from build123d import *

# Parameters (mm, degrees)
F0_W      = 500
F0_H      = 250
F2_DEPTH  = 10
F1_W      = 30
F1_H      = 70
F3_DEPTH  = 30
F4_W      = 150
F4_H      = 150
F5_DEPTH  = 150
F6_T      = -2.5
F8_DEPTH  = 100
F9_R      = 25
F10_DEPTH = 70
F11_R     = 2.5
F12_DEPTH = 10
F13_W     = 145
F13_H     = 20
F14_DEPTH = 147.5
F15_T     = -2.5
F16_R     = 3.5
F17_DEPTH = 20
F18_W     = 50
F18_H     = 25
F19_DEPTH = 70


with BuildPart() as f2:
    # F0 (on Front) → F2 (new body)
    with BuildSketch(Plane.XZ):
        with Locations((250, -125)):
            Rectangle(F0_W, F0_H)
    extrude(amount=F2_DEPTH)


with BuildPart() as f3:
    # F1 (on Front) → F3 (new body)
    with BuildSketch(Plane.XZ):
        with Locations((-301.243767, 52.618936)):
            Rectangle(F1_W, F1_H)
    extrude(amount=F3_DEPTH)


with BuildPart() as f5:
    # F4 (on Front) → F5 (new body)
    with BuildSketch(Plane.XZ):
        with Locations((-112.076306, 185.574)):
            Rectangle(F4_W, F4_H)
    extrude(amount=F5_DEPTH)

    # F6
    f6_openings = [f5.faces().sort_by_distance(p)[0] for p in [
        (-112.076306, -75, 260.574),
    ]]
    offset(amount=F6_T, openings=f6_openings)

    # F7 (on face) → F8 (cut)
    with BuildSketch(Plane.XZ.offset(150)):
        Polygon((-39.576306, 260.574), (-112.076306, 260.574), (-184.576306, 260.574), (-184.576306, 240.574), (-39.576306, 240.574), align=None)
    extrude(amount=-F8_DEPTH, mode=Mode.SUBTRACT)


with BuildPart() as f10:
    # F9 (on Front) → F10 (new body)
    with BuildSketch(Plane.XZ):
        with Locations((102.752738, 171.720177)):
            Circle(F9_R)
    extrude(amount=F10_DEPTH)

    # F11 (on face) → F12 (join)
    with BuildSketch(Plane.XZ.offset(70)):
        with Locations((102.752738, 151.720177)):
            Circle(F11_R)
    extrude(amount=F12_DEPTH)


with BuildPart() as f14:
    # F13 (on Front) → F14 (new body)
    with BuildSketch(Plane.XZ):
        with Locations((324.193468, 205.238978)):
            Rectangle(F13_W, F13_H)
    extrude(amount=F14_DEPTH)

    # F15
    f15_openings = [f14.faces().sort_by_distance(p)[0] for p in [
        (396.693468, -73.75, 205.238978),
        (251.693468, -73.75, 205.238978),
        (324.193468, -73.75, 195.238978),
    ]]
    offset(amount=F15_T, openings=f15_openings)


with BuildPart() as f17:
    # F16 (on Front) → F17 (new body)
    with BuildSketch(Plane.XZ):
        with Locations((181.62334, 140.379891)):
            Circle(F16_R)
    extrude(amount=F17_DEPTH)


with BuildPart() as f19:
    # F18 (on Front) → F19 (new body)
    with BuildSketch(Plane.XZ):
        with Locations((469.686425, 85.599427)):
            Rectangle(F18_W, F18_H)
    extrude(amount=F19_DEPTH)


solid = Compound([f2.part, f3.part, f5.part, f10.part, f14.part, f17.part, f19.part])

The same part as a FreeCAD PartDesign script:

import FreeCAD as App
import Part
import Sketcher
Q = App.Units.Quantity


def faces_at(feature, points):
    """Names of the faces that lie closest to the given points."""
    faces = feature.Shape.Faces
    near = lambda p: min(range(len(faces)), key=lambda i: faces[i].distToShape(Part.Vertex(*p))[0])
    return sorted({f"Face{near(p) + 1}" for p in points})


def add_polygon(sketch, points):
    """Adds a closed chain of lines whose ends are joined by coincident constraints."""
    first, n = sketch.GeometryCount, len(points)
    for a, b in zip(points, points[1:] + points[:1]):
        sketch.addGeometry(Part.LineSegment(App.Vector(*a, 0), App.Vector(*b, 0)), False)
    for i in range(n):
        sketch.addConstraint(Sketcher.Constraint("Coincident", first + i, 2, first + (i + 1) % n, 1))

doc = App.newDocument("Part")
params = doc.addObject("Spreadsheet::Sheet", "Params")
for row, (alias, value) in enumerate([
    ("sketch1_width", "500 mm"),
    ("sketch1_height", "250 mm"),
    ("pad1_length", "10 mm"),
    ("sketch2_width", "30 mm"),
    ("sketch2_height", "70 mm"),
    ("pad2_length", "30 mm"),
    ("sketch3_width", "150 mm"),
    ("pad3_length", "150 mm"),
    ("thickness_wall", "2.5 mm"),
    ("sketch4_width", "145 mm"),
    ("sketch4_height", "20 mm"),
    ("pocket1_length", "100 mm"),
    ("sketch5_diameter", "50 mm"),
    ("pad4_length", "70 mm"),
    ("sketch6_diameter", "5 mm"),
    ("pad5_length", "10 mm"),
    ("sketch7_width", "145 mm"),
    ("sketch7_height", "20 mm"),
    ("pad6_length", "147.5 mm"),
    ("thickness2_wall", "2.5 mm"),
    ("sketch8_diameter", "7 mm"),
    ("pad7_length", "20 mm"),
    ("sketch9_width", "50 mm"),
    ("sketch9_height", "25 mm"),
    ("pad8_length", "70 mm"),
], start=1):
    params.set(f"A{row}", alias)
    params.set(f"B{row}", "=" + value)
    params.setAlias(f"B{row}", alias)

body = doc.addObject("PartDesign::Body", "Body")

sketch1 = body.newObject("Sketcher::SketchObject", "Sketch")
sketch1.AttachmentSupport = (doc.getObject("XZ_Plane"), [""])
sketch1.MapMode = "FlatFace"
add_polygon(sketch1, [(0, 0), (0, -250), (500, -250), (500, 0)])
sketch1.addConstraint(Sketcher.Constraint("Vertical", 0))
sketch1.addConstraint(Sketcher.Constraint("Horizontal", 1))
sketch1.addConstraint(Sketcher.Constraint("Vertical", 2))
sketch1.addConstraint(Sketcher.Constraint("Horizontal", 3))
sketch1.addConstraint(Sketcher.Constraint("Coincident", 3, 2, -1, 1))
sketch1.addConstraint(Sketcher.Constraint("DistanceX", 1, 1, 1, 2, Q("500 mm")))
sketch1.addConstraint(Sketcher.Constraint("DistanceY", 0, 2, 0, 1, Q("250 mm")))
sketch1.setExpression("Constraints[9]", "Params.sketch1_width")
sketch1.setExpression("Constraints[10]", "Params.sketch1_height")
pad1 = body.newObject("PartDesign::Pad", "Pad")
pad1.Profile = sketch1
pad1.setExpression("Length", "Params.pad1_length")
body2 = doc.addObject("PartDesign::Body", "Body001")

sketch2 = body2.newObject("Sketcher::SketchObject", "Sketch001")
sketch2.AttachmentSupport = (doc.getObject("XZ_Plane001"), [""])
sketch2.MapMode = "FlatFace"
add_polygon(sketch2, [(-316, 88), (-316, 18), (-286, 18), (-286, 88)])
sketch2.addConstraint(Sketcher.Constraint("Vertical", 0))
sketch2.addConstraint(Sketcher.Constraint("Horizontal", 1))
sketch2.addConstraint(Sketcher.Constraint("Vertical", 2))
sketch2.addConstraint(Sketcher.Constraint("Horizontal", 3))
sketch2.addConstraint(Sketcher.Constraint("DistanceX", 1, 1, 1, 2, Q("30 mm")))
sketch2.addConstraint(Sketcher.Constraint("DistanceY", 0, 2, 0, 1, Q("70 mm")))
sketch2.addConstraint(Sketcher.Constraint("DistanceX", 0, 2, -1, 1, Q("316.243767 mm")))
sketch2.addConstraint(Sketcher.Constraint("DistanceY", -1, 1, 0, 2, Q("17.618936 mm")))
sketch2.setExpression("Constraints[8]", "Params.sketch2_width")
sketch2.setExpression("Constraints[9]", "Params.sketch2_height")
pad2 = body2.newObject("PartDesign::Pad", "Pad001")
pad2.Profile = sketch2
pad2.setExpression("Length", "Params.pad2_length")
body3 = doc.addObject("PartDesign::Body", "Body002")

sketch3 = body3.newObject("Sketcher::SketchObject", "Sketch002")
sketch3.AttachmentSupport = (doc.getObject("XZ_Plane002"), [""])
sketch3.MapMode = "FlatFace"
add_polygon(sketch3, [(-187, 261), (-187, 111), (-37, 111), (-37, 261)])
sketch3.addConstraint(Sketcher.Constraint("Vertical", 0))
sketch3.addConstraint(Sketcher.Constraint("Horizontal", 1))
sketch3.addConstraint(Sketcher.Constraint("Vertical", 2))
sketch3.addConstraint(Sketcher.Constraint("Horizontal", 3))
sketch3.addConstraint(Sketcher.Constraint("Equal", 3, 0))
sketch3.addConstraint(Sketcher.Constraint("DistanceX", 1, 1, 1, 2, Q("150 mm")))
sketch3.addConstraint(Sketcher.Constraint("DistanceY", -1, 1, 0, 2, Q("110.574 mm")))
sketch3.addConstraint(Sketcher.Constraint("DistanceX", 0, 2, -1, 1, Q("187.076306 mm")))
sketch3.setExpression("Constraints[9]", "Params.sketch3_width")
pad3 = body3.newObject("PartDesign::Pad", "Pad002")
pad3.Profile = sketch3
pad3.setExpression("Length", "Params.pad3_length")
doc.recompute()

thickness = body3.newObject("PartDesign::Thickness", "Thickness")
thickness.Base = (pad3, faces_at(pad3, [(-112.076, -75, 260.574)]))
thickness.setExpression("Value", "Params.thickness_wall")
thickness.Reversed = True
thickness.Join = "Arc"

sketch4 = body3.newObject("Sketcher::SketchObject", "Sketch003")
sketch4.AttachmentSupport = (doc.getObject("XZ_Plane002"), [""])
sketch4.MapMode = "FlatFace"
sketch4.AttachmentOffset = App.Placement(App.Vector(0, 0, 150), App.Rotation())
add_polygon(sketch4, [(-40, 261), (-185, 261), (-185, 241), (-40, 241)])
sketch4.addConstraint(Sketcher.Constraint("Horizontal", 0))
sketch4.addConstraint(Sketcher.Constraint("Vertical", 1))
sketch4.addConstraint(Sketcher.Constraint("Horizontal", 2))
sketch4.addConstraint(Sketcher.Constraint("Vertical", 3))
sketch4.addConstraint(Sketcher.Constraint("DistanceX", 0, 2, 0, 1, Q("145 mm")))
sketch4.addConstraint(Sketcher.Constraint("DistanceY", 1, 2, 1, 1, Q("20 mm")))
sketch4.addConstraint(Sketcher.Constraint("DistanceY", -1, 1, 0, 2, Q("260.574 mm")))
sketch4.addConstraint(Sketcher.Constraint("DistanceX", 0, 2, -1, 1, Q("184.576306 mm")))
sketch4.setExpression("Constraints[8]", "Params.sketch4_width")
sketch4.setExpression("Constraints[9]", "Params.sketch4_height")
pocket1 = body3.newObject("PartDesign::Pocket", "Pocket")
pocket1.Profile = sketch4
pocket1.setExpression("Length", "Params.pocket1_length")
body4 = doc.addObject("PartDesign::Body", "Body003")

sketch5 = body4.newObject("Sketcher::SketchObject", "Sketch004")
sketch5.AttachmentSupport = (doc.getObject("XZ_Plane003"), [""])
sketch5.MapMode = "FlatFace"
sketch5.addGeometry(Part.Circle(App.Vector(103, 172, 0), App.Vector(0, 0, 1), 25), False)
sketch5.addConstraint(Sketcher.Constraint("Diameter", 0, Q("50 mm")))
sketch5.addConstraint(Sketcher.Constraint("DistanceX", -1, 1, 0, 3, Q("102.752738 mm")))
sketch5.addConstraint(Sketcher.Constraint("DistanceY", -1, 1, 0, 3, Q("171.720177 mm")))
sketch5.setExpression("Constraints[0]", "Params.sketch5_diameter")
pad4 = body4.newObject("PartDesign::Pad", "Pad003")
pad4.Profile = sketch5
pad4.setExpression("Length", "Params.pad4_length")

sketch6 = body4.newObject("Sketcher::SketchObject", "Sketch005")
sketch6.AttachmentSupport = (doc.getObject("XZ_Plane003"), [""])
sketch6.MapMode = "FlatFace"
sketch6.AttachmentOffset = App.Placement(App.Vector(0, 0, 70), App.Rotation())
sketch6.addGeometry(Part.Circle(App.Vector(102.8, 151.7, 0), App.Vector(0, 0, 1), 2.5), False)
sketch6.addConstraint(Sketcher.Constraint("Diameter", 0, Q("5 mm")))
sketch6.addConstraint(Sketcher.Constraint("DistanceX", -1, 1, 0, 3, Q("102.752738 mm")))
sketch6.addConstraint(Sketcher.Constraint("DistanceY", -1, 1, 0, 3, Q("151.720177 mm")))
sketch6.setExpression("Constraints[0]", "Params.sketch6_diameter")
pad5 = body4.newObject("PartDesign::Pad", "Pad004")
pad5.Profile = sketch6
pad5.setExpression("Length", "Params.pad5_length")
body5 = doc.addObject("PartDesign::Body", "Body004")

sketch7 = body5.newObject("Sketcher::SketchObject", "Sketch006")
sketch7.AttachmentSupport = (doc.getObject("XZ_Plane004"), [""])
sketch7.MapMode = "FlatFace"
add_polygon(sketch7, [(252, 215), (252, 195), (397, 195), (397, 215)])
sketch7.addConstraint(Sketcher.Constraint("Vertical", 0))
sketch7.addConstraint(Sketcher.Constraint("Horizontal", 1))
sketch7.addConstraint(Sketcher.Constraint("Vertical", 2))
sketch7.addConstraint(Sketcher.Constraint("Horizontal", 3))
sketch7.addConstraint(Sketcher.Constraint("DistanceX", 1, 1, 1, 2, Q("145 mm")))
sketch7.addConstraint(Sketcher.Constraint("DistanceY", 0, 2, 0, 1, Q("20 mm")))
sketch7.addConstraint(Sketcher.Constraint("DistanceX", -1, 1, 0, 2, Q("251.693468 mm")))
sketch7.addConstraint(Sketcher.Constraint("DistanceY", -1, 1, 0, 2, Q("195.238978 mm")))
sketch7.setExpression("Constraints[8]", "Params.sketch7_width")
sketch7.setExpression("Constraints[9]", "Params.sketch7_height")
pad6 = body5.newObject("PartDesign::Pad", "Pad005")
pad6.Profile = sketch7
pad6.setExpression("Length", "Params.pad6_length")
doc.recompute()

thickness2 = body5.newObject("PartDesign::Thickness", "Thickness001")
thickness2.Base = (pad6, faces_at(pad6, [(396.693, -73.75, 205.239), (251.693, -73.75, 205.239), (324.193, -73.75, 195.239)]))
thickness2.setExpression("Value", "Params.thickness2_wall")
thickness2.Reversed = True
thickness2.Join = "Arc"
body6 = doc.addObject("PartDesign::Body", "Body005")

sketch8 = body6.newObject("Sketcher::SketchObject", "Sketch007")
sketch8.AttachmentSupport = (doc.getObject("XZ_Plane005"), [""])
sketch8.MapMode = "FlatFace"
sketch8.addGeometry(Part.Circle(App.Vector(181.6, 140.4, 0), App.Vector(0, 0, 1), 3.5), False)
sketch8.addConstraint(Sketcher.Constraint("Diameter", 0, Q("7 mm")))
sketch8.addConstraint(Sketcher.Constraint("DistanceX", -1, 1, 0, 3, Q("181.62334 mm")))
sketch8.addConstraint(Sketcher.Constraint("DistanceY", -1, 1, 0, 3, Q("140.379891 mm")))
sketch8.setExpression("Constraints[0]", "Params.sketch8_diameter")
pad7 = body6.newObject("PartDesign::Pad", "Pad006")
pad7.Profile = sketch8
pad7.setExpression("Length", "Params.pad7_length")
body7 = doc.addObject("PartDesign::Body", "Body006")

sketch9 = body7.newObject("Sketcher::SketchObject", "Sketch008")
sketch9.AttachmentSupport = (doc.getObject("XZ_Plane006"), [""])
sketch9.MapMode = "FlatFace"
add_polygon(sketch9, [(445, 98), (445, 73), (495, 73), (495, 98)])
sketch9.addConstraint(Sketcher.Constraint("Vertical", 0))
sketch9.addConstraint(Sketcher.Constraint("Horizontal", 1))
sketch9.addConstraint(Sketcher.Constraint("Vertical", 2))
sketch9.addConstraint(Sketcher.Constraint("Horizontal", 3))
sketch9.addConstraint(Sketcher.Constraint("DistanceX", 1, 1, 1, 2, Q("50 mm")))
sketch9.addConstraint(Sketcher.Constraint("DistanceY", 0, 2, 0, 1, Q("25 mm")))
sketch9.addConstraint(Sketcher.Constraint("DistanceX", -1, 1, 0, 2, Q("444.686425 mm")))
sketch9.addConstraint(Sketcher.Constraint("DistanceY", -1, 1, 0, 2, Q("73.099427 mm")))
sketch9.setExpression("Constraints[8]", "Params.sketch9_width")
sketch9.setExpression("Constraints[9]", "Params.sketch9_height")
pad8 = body7.newObject("PartDesign::Pad", "Pad007")
pad8.Profile = sketch9
pad8.setExpression("Length", "Params.pad8_length")

doc.recompute()
